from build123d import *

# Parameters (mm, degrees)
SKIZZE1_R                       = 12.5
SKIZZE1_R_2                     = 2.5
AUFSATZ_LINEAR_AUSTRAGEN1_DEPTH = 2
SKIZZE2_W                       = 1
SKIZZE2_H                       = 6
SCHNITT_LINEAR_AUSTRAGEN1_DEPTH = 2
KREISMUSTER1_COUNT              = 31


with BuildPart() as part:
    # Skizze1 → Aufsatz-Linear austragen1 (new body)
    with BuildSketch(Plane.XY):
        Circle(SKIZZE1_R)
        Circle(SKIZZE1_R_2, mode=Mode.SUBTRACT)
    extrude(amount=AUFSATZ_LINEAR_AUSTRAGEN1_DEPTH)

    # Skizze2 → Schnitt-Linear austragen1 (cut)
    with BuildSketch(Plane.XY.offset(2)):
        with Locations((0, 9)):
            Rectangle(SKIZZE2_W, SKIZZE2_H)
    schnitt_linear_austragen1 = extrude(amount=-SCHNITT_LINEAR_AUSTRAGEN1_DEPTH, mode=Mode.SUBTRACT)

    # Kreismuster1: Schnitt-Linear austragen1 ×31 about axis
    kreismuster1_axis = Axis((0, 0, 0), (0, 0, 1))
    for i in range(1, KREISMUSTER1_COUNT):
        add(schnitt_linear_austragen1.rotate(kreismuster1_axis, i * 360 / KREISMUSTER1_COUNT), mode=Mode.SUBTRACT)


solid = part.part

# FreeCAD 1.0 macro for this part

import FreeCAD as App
import Part
import Sketcher
from FreeCAD import Vector
Q = App.Units.Quantity

doc = App.newDocument("Part")
body = doc.addObject("PartDesign::Body", "Body")

# Sketch on XY plane
sketch1 = doc.addObject("Sketcher::SketchObject", "Sketch")
body.addObject(sketch1)
sketch1.AttachmentSupport = (doc.XY_Plane, [""])
sketch1.MapMode = "FlatFace"
sketch1.addGeometry([
    Part.Circle(Vector(0, 0, 0), Vector(0, 0, 1), 12.5),
    Part.Circle(Vector(0, 0, 0), Vector(0, 0, 1), 2.5),
], False)
sketch1.addConstraint([
    Sketcher.Constraint("Coincident", 0, 3, -1, 1),
    Sketcher.Constraint("Coincident", 1, 3, -1, 1),
    Sketcher.Constraint("Diameter", 0, Q("25 mm")),
    Sketcher.Constraint("Diameter", 1, Q("5 mm")),
])
pad1 = doc.addObject("PartDesign::Pad", "Pad")
body.addObject(pad1)
pad1.Profile = sketch1
pad1.Length = 2

# Sketch on XY plane
sketch2 = doc.addObject("Sketcher::SketchObject", "Sketch001")
body.addObject(sketch2)
sketch2.AttachmentSupport = (doc.XY_Plane, [""])
sketch2.MapMode = "FlatFace"
sketch2.AttachmentOffset = App.Placement(Vector(0, 0, 2), App.Rotation())
sketch2.addGeometry([
    Part.LineSegment(Vector(-0.5, 12, 0), Vector(-0.5, 6, 0)),
    Part.LineSegment(Vector(-0.5, 6, 0), Vector(0.5, 6, 0)),
    Part.LineSegment(Vector(0.5, 6, 0), Vector(0.5, 12, 0)),
    Part.LineSegment(Vector(0.5, 12, 0), Vector(-0.5, 12, 0)),
], False)
sketch2.addConstraint([
    Sketcher.Constraint("Coincident", 0, 2, 1, 1),
    Sketcher.Constraint("Coincident", 1, 2, 2, 1),
    Sketcher.Constraint("Coincident", 2, 2, 3, 1),
    Sketcher.Constraint("Coincident", 3, 2, 0, 1),
    Sketcher.Constraint("Vertical", 0),
    Sketcher.Constraint("Horizontal", 1),
    Sketcher.Constraint("Vertical", 2),
    Sketcher.Constraint("Horizontal", 3),
    Sketcher.Constraint("DistanceX", 1, 1, 1, 2, Q("1 mm")),
    Sketcher.Constraint("DistanceY", 0, 2, 0, 1, Q("6 mm")),
    Sketcher.Constraint("DistanceY", -1, 1, 0, 2, Q("6 mm")),
    Sketcher.Constraint("DistanceX", 0, 2, -1, 1, Q("0.5 mm")),
])
pocket1 = doc.addObject("PartDesign::Pocket", "Pocket")
body.addObject(pocket1)
pocket1.Profile = sketch2
pocket1.Length = 2
doc.recompute()

polarpattern = doc.addObject("PartDesign::PolarPattern", "PolarPattern")
body.addObject(polarpattern)
polarpattern.Originals = [pocket1]
polarpattern.Axis = (doc.Z_Axis, [""])
polarpattern.Angle = 360
polarpattern.Occurrences = 31
body.Tip = polarpattern

doc.recompute()
